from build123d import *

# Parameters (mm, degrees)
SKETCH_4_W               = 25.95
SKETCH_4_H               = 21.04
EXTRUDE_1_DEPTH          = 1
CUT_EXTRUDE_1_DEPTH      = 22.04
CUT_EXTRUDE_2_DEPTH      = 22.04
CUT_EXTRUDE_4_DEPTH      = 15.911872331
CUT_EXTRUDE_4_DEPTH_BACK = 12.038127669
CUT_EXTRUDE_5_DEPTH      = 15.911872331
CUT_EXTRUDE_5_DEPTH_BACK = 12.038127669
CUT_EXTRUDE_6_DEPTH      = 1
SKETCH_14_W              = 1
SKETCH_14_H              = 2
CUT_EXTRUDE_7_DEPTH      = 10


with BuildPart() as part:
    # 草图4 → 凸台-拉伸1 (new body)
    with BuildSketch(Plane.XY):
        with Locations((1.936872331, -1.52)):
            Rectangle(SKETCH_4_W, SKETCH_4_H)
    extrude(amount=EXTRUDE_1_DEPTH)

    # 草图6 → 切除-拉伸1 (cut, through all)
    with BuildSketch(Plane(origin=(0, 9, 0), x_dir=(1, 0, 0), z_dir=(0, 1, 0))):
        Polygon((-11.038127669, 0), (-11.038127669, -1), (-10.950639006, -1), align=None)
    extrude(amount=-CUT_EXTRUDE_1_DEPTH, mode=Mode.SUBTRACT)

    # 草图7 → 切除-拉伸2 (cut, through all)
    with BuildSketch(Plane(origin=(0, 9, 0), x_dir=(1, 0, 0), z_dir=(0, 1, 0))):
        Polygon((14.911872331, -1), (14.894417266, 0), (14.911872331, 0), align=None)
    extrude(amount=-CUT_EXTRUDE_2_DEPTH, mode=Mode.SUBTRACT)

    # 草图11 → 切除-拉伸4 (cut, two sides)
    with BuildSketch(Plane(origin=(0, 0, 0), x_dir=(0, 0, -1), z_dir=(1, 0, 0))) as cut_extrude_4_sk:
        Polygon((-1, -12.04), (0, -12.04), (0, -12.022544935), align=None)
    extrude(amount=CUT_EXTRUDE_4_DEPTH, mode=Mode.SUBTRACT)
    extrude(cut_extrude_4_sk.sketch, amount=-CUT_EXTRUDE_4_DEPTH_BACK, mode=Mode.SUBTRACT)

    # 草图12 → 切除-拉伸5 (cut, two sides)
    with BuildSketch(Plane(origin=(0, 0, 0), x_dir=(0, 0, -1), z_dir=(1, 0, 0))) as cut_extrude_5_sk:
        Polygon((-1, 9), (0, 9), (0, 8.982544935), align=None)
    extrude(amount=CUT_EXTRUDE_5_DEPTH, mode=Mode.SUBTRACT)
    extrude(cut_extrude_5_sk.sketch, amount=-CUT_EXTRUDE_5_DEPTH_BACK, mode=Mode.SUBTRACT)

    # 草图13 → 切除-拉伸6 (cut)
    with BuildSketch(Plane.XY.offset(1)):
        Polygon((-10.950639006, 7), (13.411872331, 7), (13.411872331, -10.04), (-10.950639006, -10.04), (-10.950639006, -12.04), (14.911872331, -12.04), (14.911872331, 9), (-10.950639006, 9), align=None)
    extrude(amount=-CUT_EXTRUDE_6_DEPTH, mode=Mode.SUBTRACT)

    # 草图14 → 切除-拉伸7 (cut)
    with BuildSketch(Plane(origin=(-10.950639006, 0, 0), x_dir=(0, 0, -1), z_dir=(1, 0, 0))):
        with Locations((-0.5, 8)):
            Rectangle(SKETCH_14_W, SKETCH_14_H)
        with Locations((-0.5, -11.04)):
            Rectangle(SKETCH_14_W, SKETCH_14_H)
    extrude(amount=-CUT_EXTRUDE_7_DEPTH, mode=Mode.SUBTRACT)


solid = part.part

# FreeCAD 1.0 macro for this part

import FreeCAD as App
import Part
import Sketcher
from FreeCAD import Vector
Q = App.Units.Quantity

doc = App.newDocument("Part")
params = doc.addObject("Spreadsheet::Sheet", "Params")
for row, (alias, value) in enumerate([
    ("sketch1_width", "25.95 mm"),
    ("sketch1_height", "21.04 mm"),
    ("pad1_length", "1 mm"),
    ("sketch2_height", "1 mm"),
    ("sketch3_height", "1 mm"),
    ("sketch4_height", "1 mm"),
    ("sketch5_height", "1 mm"),
    ("sketch6_height", "2 mm"),
    ("sketch6_height2", "17.04 mm"),
    ("pocket5_length", "1 mm"),
    ("sketch7_width", "2 mm"),
    ("sketch7_height", "1 mm"),
    ("pocket6_length", "10 mm"),
], start=1):
    params.set(f"A{row}", alias)
    params.set(f"B{row}", "=" + value)
    params.setAlias(f"B{row}", alias)

body = doc.addObject("PartDesign::Body", "Body")

# Sketch on XY plane
sketch1 = body.newObject("Sketcher::SketchObject", "Sketch")
sketch1.AttachmentSupport = (doc.getObject("XY_Plane"), [""])
sketch1.MapMode = "FlatFace"
sketch1.addGeometry(Part.LineSegment(Vector(-11, 9, 0), Vector(-11, -12, 0)), False)
sketch1.addGeometry(Part.LineSegment(Vector(-11, -12, 0), Vector(15, -12, 0)), False)
sketch1.addGeometry(Part.LineSegment(Vector(15, -12, 0), Vector(15, 9, 0)), False)
sketch1.addGeometry(Part.LineSegment(Vector(15, 9, 0), Vector(-11, 9, 0)), False)
sketch1.addConstraint(Sketcher.Constraint("Coincident", 0, 2, 1, 1))
sketch1.addConstraint(Sketcher.Constraint("Coincident", 1, 2, 2, 1))
sketch1.addConstraint(Sketcher.Constraint("Coincident", 2, 2, 3, 1))
sketch1.addConstraint(Sketcher.Constraint("Coincident", 3, 2, 0, 1))
sketch1.addConstraint(Sketcher.Constraint("Vertical", 0))
sketch1.addConstraint(Sketcher.Constraint("Horizontal", 1))
sketch1.addConstraint(Sketcher.Constraint("Vertical", 2))
sketch1.addConstraint(Sketcher.Constraint("Horizontal", 3))
sketch1.addConstraint(Sketcher.Constraint("DistanceY", -1, 1, 2, 2, Q("9 mm")))
sketch1.addConstraint(Sketcher.Constraint("DistanceX", 1, 1, 1, 2, Q("25.95 mm")))
sketch1.addConstraint(Sketcher.Constraint("DistanceY", 0, 2, 0, 1, Q("21.04 mm")))
sketch1.addConstraint(Sketcher.Constraint("DistanceX", 0, 2, -1, 1, Q("11.038128 mm")))
sketch1.setExpression("Constraints[9]", "Params.sketch1_width")
sketch1.setExpression("Constraints[10]", "Params.sketch1_height")
pad1 = body.newObject("PartDesign::Pad", "Pad")
pad1.Profile = sketch1
pad1.setExpression("Length", "Params.pad1_length")

# Sketch on XZ plane
sketch2 = body.newObject("Sketcher::SketchObject", "Sketch001")
sketch2.AttachmentSupport = (doc.getObject("XZ_Plane"), [""])
sketch2.MapMode = "FlatFace"
sketch2.AttachmentOffset = App.Placement(Vector(0, 0, -9), App.Rotation())
sketch2.addGeometry(Part.LineSegment(Vector(-11.04, 0, 0), Vector(-11.04, 1, 0)), False)
sketch2.addGeometry(Part.LineSegment(Vector(-11.04, 1, 0), Vector(-10.95, 1, 0)), False)
sketch2.addGeometry(Part.LineSegment(Vector(-10.95, 1, 0), Vector(-11.04, 0, 0)), False)
sketch2.addConstraint(Sketcher.Constraint("Coincident", 0, 2, 1, 1))
sketch2.addConstraint(Sketcher.Constraint("Coincident", 1, 2, 2, 1))
sketch2.addConstraint(Sketcher.Constraint("Coincident", 2, 2, 0, 1))
sketch2.addConstraint(Sketcher.Constraint("Vertical", 0))
sketch2.addConstraint(Sketcher.Constraint("Horizontal", 1))
sketch2.addConstraint(Sketcher.Constraint("PointOnObject", 2, 2, -1))
sketch2.addConstraint(Sketcher.Constraint("DistanceY", 0, 1, 0, 2, Q("1 mm")))
sketch2.addConstraint(Sketcher.Constraint("Angle", 2, Q("-95 deg")))
sketch2.addConstraint(Sketcher.Constraint("DistanceX", 1, 2, -1, 1, Q("10.950639 mm")))
sketch2.setExpression("Constraints[6]", "Params.sketch2_height")
pocket1 = body.newObject("PartDesign::Pocket", "Pocket")
pocket1.Profile = sketch2
pocket1.Type = "ThroughAll"
pocket1.Reversed = True

# Sketch on XZ plane
sketch3 = body.newObject("Sketcher::SketchObject", "Sketch002")
sketch3.AttachmentSupport = (doc.getObject("XZ_Plane"), [""])
sketch3.MapMode = "FlatFace"
sketch3.AttachmentOffset = App.Placement(Vector(0, 0, -9), App.Rotation())
sketch3.addGeometry(Part.LineSegment(Vector(14.894, 0, 0), Vector(14.912, 1, 0)), False)
sketch3.addGeometry(Part.LineSegment(Vector(14.912, 1, 0), Vector(14.912, 0, 0)), False)
sketch3.addGeometry(Part.LineSegment(Vector(14.912, 0, 0), Vector(14.894, 0, 0)), False)
sketch3.addConstraint(Sketcher.Constraint("Coincident", 0, 2, 1, 1))
sketch3.addConstraint(Sketcher.Constraint("Coincident", 1, 2, 2, 1))
sketch3.addConstraint(Sketcher.Constraint("Coincident", 2, 2, 0, 1))
sketch3.addConstraint(Sketcher.Constraint("Vertical", 1))
sketch3.addConstraint(Sketcher.Constraint("Horizontal", 2))
sketch3.addConstraint(Sketcher.Constraint("PointOnObject", 1, 2, -1))
sketch3.addConstraint(Sketcher.Constraint("DistanceY", 1, 2, 1, 1, Q("1 mm")))
sketch3.addConstraint(Sketcher.Constraint("Angle", 0, Q("89 deg")))
sketch3.addConstraint(Sketcher.Constraint("DistanceX", -1, 1, 0, 2, Q("14.911872 mm")))
sketch3.setExpression("Constraints[6]", "Params.sketch3_height")
pocket2 = body.newObject("PartDesign::Pocket", "Pocket001")
pocket2.Profile = sketch3
pocket2.Type = "ThroughAll"
pocket2.Reversed = True

# Sketch on YZ plane
sketch4 = body.newObject("Sketcher::SketchObject", "Sketch003")
sketch4.AttachmentSupport = (doc.getObject("YZ_Plane"), [""])
sketch4.MapMode = "FlatFace"
sketch4.addGeometry(Part.LineSegment(Vector(-12.04, 1, 0), Vector(-12.04, 0, 0)), False)
sketch4.addGeometry(Part.LineSegment(Vector(-12.04, 0, 0), Vector(-12.023, 0, 0)), False)
sketch4.addGeometry(Part.LineSegment(Vector(-12.023, 0, 0), Vector(-12.04, 1, 0)), False)
sketch4.addConstraint(Sketcher.Constraint("Coincident", 0, 2, 1, 1))
sketch4.addConstraint(Sketcher.Constraint("Coincident", 1, 2, 2, 1))
sketch4.addConstraint(Sketcher.Constraint("Coincident", 2, 2, 0, 1))
sketch4.addConstraint(Sketcher.Constraint("Vertical", 0))
sketch4.addConstraint(Sketcher.Constraint("Horizontal", 1))
sketch4.addConstraint(Sketcher.Constraint("PointOnObject", 0, 2, -1))
sketch4.addConstraint(Sketcher.Constraint("DistanceY", 0, 2, 0, 1, Q("1 mm")))
sketch4.addConstraint(Sketcher.Constraint("Angle", 2, Q("91 deg")))
sketch4.addConstraint(Sketcher.Constraint("DistanceX", 0, 2, -1, 1, Q("12.04 mm")))
sketch4.setExpression("Constraints[6]", "Params.sketch4_height")
pocket3 = body.newObject("PartDesign::Pocket", "Pocket002")
pocket3.Profile = sketch4
pocket3.Type = "ThroughAll"
pocket3.Midplane = True

# Sketch on YZ plane
sketch5 = body.newObject("Sketcher::SketchObject", "Sketch004")
sketch5.AttachmentSupport = (doc.getObject("YZ_Plane"), [""])
sketch5.MapMode = "FlatFace"
sketch5.addGeometry(Part.LineSegment(Vector(9, 0, 0), Vector(9, 1, 0)), False)
sketch5.addGeometry(Part.LineSegment(Vector(9, 1, 0), Vector(8.983, 0, 0)), False)
sketch5.addGeometry(Part.LineSegment(Vector(8.983, 0, 0), Vector(9, 0, 0)), False)
sketch5.addConstraint(Sketcher.Constraint("Coincident", 0, 2, 1, 1))
sketch5.addConstraint(Sketcher.Constraint("Coincident", 1, 2, 2, 1))
sketch5.addConstraint(Sketcher.Constraint("Coincident", 2, 2, 0, 1))
sketch5.addConstraint(Sketcher.Constraint("Vertical", 0))
sketch5.addConstraint(Sketcher.Constraint("Horizontal", 2))
sketch5.addConstraint(Sketcher.Constraint("PointOnObject", 1, 2, -1))
sketch5.addConstraint(Sketcher.Constraint("DistanceY", 0, 1, 0, 2, Q("1 mm")))
sketch5.addConstraint(Sketcher.Constraint("Angle", 1, Q("-91 deg")))
sketch5.addConstraint(Sketcher.Constraint("DistanceX", -1, 1, 0, 2, Q("9 mm")))
sketch5.setExpression("Constraints[6]", "Params.sketch5_height")
pocket4 = body.newObject("PartDesign::Pocket", "Pocket003")
pocket4.Profile = sketch5
pocket4.Type = "ThroughAll"
pocket4.Midplane = True

# Sketch on XY plane
sketch6 = body.newObject("Sketcher::SketchObject", "Sketch005")
sketch6.AttachmentSupport = (doc.getObject("XY_Plane"), [""])
sketch6.MapMode = "FlatFace"
sketch6.AttachmentOffset = App.Placement(Vector(0, 0, 1), App.Rotation())
sketch6.addGeometry(Part.LineSegment(Vector(-11, 7, 0), Vector(13.4, 7, 0)), False)
sketch6.addGeometry(Part.LineSegment(Vector(13.4, 7, 0), Vector(13.4, -10, 0)), False)
sketch6.addGeometry(Part.LineSegment(Vector(13.4, -10, 0), Vector(-11, -10, 0)), False)
sketch6.addGeometry(Part.LineSegment(Vector(-11, -10, 0), Vector(-11, -12, 0)), False)
sketch6.addGeometry(Part.LineSegment(Vector(-11, -12, 0), Vector(14.9, -12, 0)), False)
sketch6.addGeometry(Part.LineSegment(Vector(14.9, -12, 0), Vector(14.9, 9, 0)), False)
sketch6.addGeometry(Part.LineSegment(Vector(14.9, 9, 0), Vector(-11, 9, 0)), False)
sketch6.addGeometry(Part.LineSegment(Vector(-11, 9, 0), Vector(-11, 7, 0)), False)
sketch6.addConstraint(Sketcher.Constraint("Coincident", 0, 2, 1, 1))
sketch6.addConstraint(Sketcher.Constraint("Coincident", 1, 2, 2, 1))
sketch6.addConstraint(Sketcher.Constraint("Coincident", 2, 2, 3, 1))
sketch6.addConstraint(Sketcher.Constraint("Coincident", 3, 2, 4, 1))
sketch6.addConstraint(Sketcher.Constraint("Coincident", 4, 2, 5, 1))
sketch6.addConstraint(Sketcher.Constraint("Coincident", 5, 2, 6, 1))
sketch6.addConstraint(Sketcher.Constraint("Coincident", 6, 2, 7, 1))
sketch6.addConstraint(Sketcher.Constraint("Coincident", 7, 2, 0, 1))
sketch6.addConstraint(Sketcher.Constraint("Horizontal", 0))
sketch6.addConstraint(Sketcher.Constraint("Vertical", 1))
sketch6.addConstraint(Sketcher.Constraint("Horizontal", 2))
sketch6.addConstraint(Sketcher.Constraint("Vertical", 3))
sketch6.addConstraint(Sketcher.Constraint("Horizontal", 4))
sketch6.addConstraint(Sketcher.Constraint("Vertical", 5))
sketch6.addConstraint(Sketcher.Constraint("Horizontal", 6))
sketch6.addConstraint(Sketcher.Constraint("Vertical", 7))
sketch6.addConstraint(Sketcher.Constraint("Vertical", 3, 2, 6, 2))
sketch6.addConstraint(Sketcher.Constraint("Equal", 3, 7))
sketch6.addConstraint(Sketcher.Constraint("DistanceY", 3, 2, 3, 1, Q("2 mm")))
sketch6.addConstraint(Sketcher.Constraint("DistanceY", -1, 1, 0, 2, Q("7 mm")))
sketch6.addConstraint(Sketcher.Constraint("DistanceY", 1, 2, 1, 1, Q("17.04 mm")))
sketch6.addConstraint(Sketcher.Constraint("DistanceX", 1, 2, 4, 2, Q("1.5 mm")))
sketch6.addConstraint(Sketcher.Constraint("DistanceX", 0, 1, 0, 2, Q("24.362511 mm")))
sketch6.addConstraint(Sketcher.Constraint("DistanceX", 2, 2, -1, 1, Q("10.950639 mm")))
sketch6.setExpression("Constraints[18]", "Params.sketch6_height")
sketch6.setExpression("Constraints[20]", "Params.sketch6_height2")
pocket5 = body.newObject("PartDesign::Pocket", "Pocket004")
pocket5.Profile = sketch6
pocket5.setExpression("Length", "Params.pocket5_length")

# Sketch on YZ plane
sketch7 = body.newObject("Sketcher::SketchObject", "Sketch006")
sketch7.AttachmentSupport = (doc.getObject("YZ_Plane"), [""])
sketch7.MapMode = "FlatFace"
sketch7.AttachmentOffset = App.Placement(Vector(0, 0, -10.950639), App.Rotation())
sketch7.addGeometry(Part.LineSegment(Vector(9, 1, 0), Vector(7, 1, 0)), False)
sketch7.addGeometry(Part.LineSegment(Vector(7, 1, 0), Vector(7, 0, 0)), False)
sketch7.addGeometry(Part.LineSegment(Vector(7, 0, 0), Vector(9, 0, 0)), False)
sketch7.addGeometry(Part.LineSegment(Vector(9, 0, 0), Vector(9, 1, 0)), False)
sketch7.addGeometry(Part.LineSegment(Vector(-10, 1, 0), Vector(-12, 1, 0)), False)
sketch7.addGeometry(Part.LineSegment(Vector(-12, 1, 0), Vector(-12, 0, 0)), False)
sketch7.addGeometry(Part.LineSegment(Vector(-12, 0, 0), Vector(-10, 0, 0)), False)
sketch7.addGeometry(Part.LineSegment(Vector(-10, 0, 0), Vector(-10, 1, 0)), False)
sketch7.addConstraint(Sketcher.Constraint("Coincident", 0, 2, 1, 1))
sketch7.addConstraint(Sketcher.Constraint("Coincident", 1, 2, 2, 1))
sketch7.addConstraint(Sketcher.Constraint("Coincident", 2, 2, 3, 1))
sketch7.addConstraint(Sketcher.Constraint("Coincident", 3, 2, 0, 1))
sketch7.addConstraint(Sketcher.Constraint("Coincident", 4, 2, 5, 1))
sketch7.addConstraint(Sketcher.Constraint("Coincident", 5, 2, 6, 1))
sketch7.addConstraint(Sketcher.Constraint("Coincident", 6, 2, 7, 1))
sketch7.addConstraint(Sketcher.Constraint("Coincident", 7, 2, 4, 1))
sketch7.addConstraint(Sketcher.Constraint("Horizontal", 0))
sketch7.addConstraint(Sketcher.Constraint("Vertical", 1))
sketch7.addConstraint(Sketcher.Constraint("Horizontal", 2))
sketch7.addConstraint(Sketcher.Constraint("Vertical", 3))
sketch7.addConstraint(Sketcher.Constraint("Horizontal", 4))
sketch7.addConstraint(Sketcher.Constraint("Vertical", 5))
sketch7.addConstraint(Sketcher.Constraint("Horizontal", 6))
sketch7.addConstraint(Sketcher.Constraint("Vertical", 7))
sketch7.addConstraint(Sketcher.Constraint("PointOnObject", 1, 2, -1))
sketch7.addConstraint(Sketcher.Constraint("PointOnObject", 5, 2, -1))
sketch7.addConstraint(Sketcher.Constraint("Horizontal", 3, 2, 4, 2))
sketch7.addConstraint(Sketcher.Constraint("Equal", 2, 4))
sketch7.addConstraint(Sketcher.Constraint("DistanceX", 0, 2, 0, 1, Q("2 mm")))
sketch7.addConstraint(Sketcher.Constraint("DistanceY", 1, 2, 1, 1, Q("1 mm")))
sketch7.addConstraint(Sketcher.Constraint("DistanceX", -1, 1, 0, 2, Q("7 mm")))
sketch7.addConstraint(Sketcher.Constraint("DistanceX", 4, 2, -1, 1, Q("12.04 mm")))
sketch7.setExpression("Constraints[20]", "Params.sketch7_width")
sketch7.setExpression("Constraints[21]", "Params.sketch7_height")
pocket6 = body.newObject("PartDesign::Pocket", "Pocket005")
pocket6.Profile = sketch7
pocket6.setExpression("Length", "Params.pocket6_length")

doc.recompute()
